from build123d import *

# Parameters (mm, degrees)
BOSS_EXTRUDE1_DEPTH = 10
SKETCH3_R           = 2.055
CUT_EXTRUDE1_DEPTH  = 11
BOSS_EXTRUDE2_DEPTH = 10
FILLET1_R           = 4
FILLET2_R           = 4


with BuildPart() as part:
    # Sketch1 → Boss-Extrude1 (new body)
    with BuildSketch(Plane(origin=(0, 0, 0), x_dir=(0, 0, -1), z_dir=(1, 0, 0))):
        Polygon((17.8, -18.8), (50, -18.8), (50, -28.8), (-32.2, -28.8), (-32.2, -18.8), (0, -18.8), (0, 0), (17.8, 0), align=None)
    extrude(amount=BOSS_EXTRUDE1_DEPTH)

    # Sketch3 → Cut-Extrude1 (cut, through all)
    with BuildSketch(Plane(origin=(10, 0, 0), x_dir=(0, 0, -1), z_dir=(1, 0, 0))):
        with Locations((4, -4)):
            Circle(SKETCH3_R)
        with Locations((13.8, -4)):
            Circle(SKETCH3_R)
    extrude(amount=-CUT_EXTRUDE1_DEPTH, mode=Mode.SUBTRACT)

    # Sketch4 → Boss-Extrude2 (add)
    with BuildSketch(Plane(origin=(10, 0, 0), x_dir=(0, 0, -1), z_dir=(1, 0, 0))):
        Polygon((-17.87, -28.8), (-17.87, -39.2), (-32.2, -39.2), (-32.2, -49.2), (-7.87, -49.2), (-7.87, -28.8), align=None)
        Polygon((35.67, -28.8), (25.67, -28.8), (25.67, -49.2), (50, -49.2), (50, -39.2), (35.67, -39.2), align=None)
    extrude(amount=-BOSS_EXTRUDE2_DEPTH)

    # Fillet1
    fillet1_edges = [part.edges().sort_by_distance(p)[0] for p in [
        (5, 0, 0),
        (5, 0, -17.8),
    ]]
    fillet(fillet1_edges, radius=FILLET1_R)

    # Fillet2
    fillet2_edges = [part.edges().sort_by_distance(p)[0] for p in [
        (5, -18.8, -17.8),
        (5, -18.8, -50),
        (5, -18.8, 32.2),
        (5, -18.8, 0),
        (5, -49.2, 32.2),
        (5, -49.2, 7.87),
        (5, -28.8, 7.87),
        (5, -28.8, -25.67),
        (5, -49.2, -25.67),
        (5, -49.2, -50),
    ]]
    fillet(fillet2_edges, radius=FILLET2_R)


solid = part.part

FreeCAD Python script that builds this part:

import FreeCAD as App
import Part
import Sketcher


def edges_at(feature, points):
    """Names of the edges that pass closest to the given points."""
    edges = feature.Shape.Edges
    near = lambda p: min(range(len(edges)), key=lambda i: edges[i].distToShape(Part.Vertex(*p))[0])
    return sorted({f"Edge{near(p) + 1}" for p in points})

doc = App.newDocument("Part")
params = doc.addObject("Spreadsheet::Sheet", "Params")
for row, (alias, value) in enumerate([
    ("sketch1_width", "10 mm"),
    ("sketch1_width2", "18.8 mm"),
    ("sketch1_height", "32.2 mm"),
    ("sketch1_height2", "17.8 mm"),
    ("pad1_length", "10 mm"),
    ("sketch2_diameter", "4.11 mm"),
    ("sketch3_width", "10 mm"),
    ("sketch3_width2", "10.4 mm"),
    ("sketch3_height", "14.33 mm"),
    ("pad2_length", "10 mm"),
    ("fillet_radius", "4 mm"),
    ("fillet2_radius", "4 mm"),
], start=1):
    params.set(f"A{row}", alias)
    params.set(f"B{row}", "=" + value)
    params.setAlias(f"B{row}", alias)

body = doc.addObject("PartDesign::Body", "Body")

sketch1 = body.newObject("Sketcher::SketchObject", "Sketch")
sketch1.AttachmentSupport = (doc.getObject("YZ_Plane"), [""])
sketch1.MapMode = "FlatFace"
sketch1.addGeometry([
    Part.LineSegment(App.Vector(-19, -50, 0), App.Vector(-19, -18, 0)),
    Part.LineSegment(App.Vector(-19, -18, 0), App.Vector(0, -18, 0)),
    Part.LineSegment(App.Vector(0, -18, 0), App.Vector(0, 0, 0)),
    Part.LineSegment(App.Vector(0, 0, 0), App.Vector(-19, 0, 0)),
    Part.LineSegment(App.Vector(-19, 0, 0), App.Vector(-19, 32, 0)),
    Part.LineSegment(App.Vector(-19, 32, 0), App.Vector(-29, 32, 0)),
    Part.LineSegment(App.Vector(-29, 32, 0), App.Vector(-29, -50, 0)),
    Part.LineSegment(App.Vector(-29, -50, 0), App.Vector(-19, -50, 0)),
], False)
sketch1.addConstraint([
    Sketcher.Constraint("Coincident", 0, 2, 1, 1),
    Sketcher.Constraint("Coincident", 1, 2, 2, 1),
    Sketcher.Constraint("Coincident", 2, 2, 3, 1),
    Sketcher.Constraint("Coincident", 3, 2, 4, 1),
    Sketcher.Constraint("Coincident", 4, 2, 5, 1),
    Sketcher.Constraint("Coincident", 5, 2, 6, 1),
    Sketcher.Constraint("Coincident", 6, 2, 7, 1),
    Sketcher.Constraint("Coincident", 7, 2, 0, 1),
    Sketcher.Constraint("Vertical", 0),
    Sketcher.Constraint("Horizontal", 1),
    Sketcher.Constraint("Vertical", 2),
    Sketcher.Constraint("Horizontal", 3),
    Sketcher.Constraint("Vertical", 4),
    Sketcher.Constraint("Horizontal", 5),
    Sketcher.Constraint("Vertical", 6),
    Sketcher.Constraint("Horizontal", 7),
    Sketcher.Constraint("Coincident", 2, 2, -1, 1),
    Sketcher.Constraint("Vertical", 0, 2, 3, 2),
    Sketcher.Constraint("Equal", 0, 4),
    Sketcher.Constraint("DistanceX", 5, 2, 5, 1, 10.0),
    Sketcher.Constraint("DistanceX", 1, 1, 1, 2, 18.8),
    Sketcher.Constraint("DistanceY", 0, 1, 0, 2, 32.2),
    Sketcher.Constraint("DistanceY", 2, 1, 2, 2, 17.8),
])
sketch1.setExpression("Constraints[19]", "Params.sketch1_width")
sketch1.setExpression("Constraints[20]", "Params.sketch1_width2")
sketch1.setExpression("Constraints[21]", "Params.sketch1_height")
sketch1.setExpression("Constraints[22]", "Params.sketch1_height2")
pad1 = body.newObject("PartDesign::Pad", "Pad")
pad1.Profile = sketch1
pad1.setExpression("Length", "Params.pad1_length")

sketch2 = body.newObject("Sketcher::SketchObject", "Sketch001")
sketch2.AttachmentSupport = (doc.getObject("YZ_Plane"), [""])
sketch2.MapMode = "FlatFace"
sketch2.AttachmentOffset = App.Placement(App.Vector(0, 0, 10), App.Rotation())
sketch2.addGeometry([
    Part.Circle(App.Vector(-4, -4, 0), App.Vector(0, 0, 1), 2.1),
    Part.Circle(App.Vector(-4, -13.8, 0), App.Vector(0, 0, 1), 2.1),
], False)
sketch2.addConstraint([
    Sketcher.Constraint("Equal", 0, 1),
    Sketcher.Constraint("Vertical", 0, 3, 1, 3),
    Sketcher.Constraint("Diameter", 0, 4.11),
    Sketcher.Constraint("DistanceX", 0, 3, -1, 1, 4.0),
    Sketcher.Constraint("DistanceY", 0, 3, -1, 1, 4.0),
    Sketcher.Constraint("DistanceY", 1, 3, -1, 1, 13.8),
])
sketch2.setExpression("Constraints[2]", "Params.sketch2_diameter")
pocket1 = body.newObject("PartDesign::Pocket", "Pocket")
pocket1.Profile = sketch2
pocket1.Type = "ThroughAll"

sketch3 = body.newObject("Sketcher::SketchObject", "Sketch002")
sketch3.AttachmentSupport = (doc.getObject("YZ_Plane"), [""])
sketch3.MapMode = "FlatFace"
sketch3.AttachmentOffset = App.Placement(App.Vector(0, 0, 10), App.Rotation())
sketch3.addGeometry([
    Part.LineSegment(App.Vector(-29, 18, 0), App.Vector(-39, 18, 0)),
    Part.LineSegment(App.Vector(-39, 18, 0), App.Vector(-39, 32, 0)),
    Part.LineSegment(App.Vector(-39, 32, 0), App.Vector(-49, 32, 0)),
    Part.LineSegment(App.Vector(-49, 32, 0), App.Vector(-49, 8, 0)),
    Part.LineSegment(App.Vector(-49, 8, 0), App.Vector(-29, 8, 0)),
    Part.LineSegment(App.Vector(-29, 8, 0), App.Vector(-29, 18, 0)),
    Part.LineSegment(App.Vector(-29, -36, 0), App.Vector(-29, -26, 0)),
    Part.LineSegment(App.Vector(-29, -26, 0), App.Vector(-49, -26, 0)),
    Part.LineSegment(App.Vector(-49, -26, 0), App.Vector(-49, -50, 0)),
    Part.LineSegment(App.Vector(-49, -50, 0), App.Vector(-39, -50, 0)),
    Part.LineSegment(App.Vector(-39, -50, 0), App.Vector(-39, -36, 0)),
    Part.LineSegment(App.Vector(-39, -36, 0), App.Vector(-29, -36, 0)),
], False)
sketch3.addConstraint([
    Sketcher.Constraint("Coincident", 0, 2, 1, 1),
    Sketcher.Constraint("Coincident", 1, 2, 2, 1),
    Sketcher.Constraint("Coincident", 2, 2, 3, 1),
    Sketcher.Constraint("Coincident", 3, 2, 4, 1),
    Sketcher.Constraint("Coincident", 4, 2, 5, 1),
    Sketcher.Constraint("Coincident", 5, 2, 0, 1),
    Sketcher.Constraint("Coincident", 6, 2, 7, 1),
    Sketcher.Constraint("Coincident", 7, 2, 8, 1),
    Sketcher.Constraint("Coincident", 8, 2, 9, 1),
    Sketcher.Constraint("Coincident", 9, 2, 10, 1),
    Sketcher.Constraint("Coincident", 10, 2, 11, 1),
    Sketcher.Constraint("Coincident", 11, 2, 6, 1),
    Sketcher.Constraint("Horizontal", 0),
    Sketcher.Constraint("Vertical", 1),
    Sketcher.Constraint("Horizontal", 2),
    Sketcher.Constraint("Vertical", 3),
    Sketcher.Constraint("Horizontal", 4),
    Sketcher.Constraint("Vertical", 5),
    Sketcher.Constraint("Vertical", 6),
    Sketcher.Constraint("Horizontal", 7),
    Sketcher.Constraint("Vertical", 8),
    Sketcher.Constraint("Horizontal", 9),
    Sketcher.Constraint("Vertical", 10),
    Sketcher.Constraint("Horizontal", 11),
    Sketcher.Constraint("Vertical", 5, 2, 6, 2),
    Sketcher.Constraint("Vertical", 3, 2, 7, 2),
    Sketcher.Constraint("Vertical", 1, 2, 9, 2),
    Sketcher.Constraint("Equal", 9, 5),
    Sketcher.Constraint("Equal", 5, 6),
    Sketcher.Constraint("Equal", 3, 8),
    Sketcher.Constraint("DistanceX", 2, 2, 2, 1, 10.0),
    Sketcher.Constraint("DistanceX", 0, 2, 0, 1, 10.4),
    Sketcher.Constraint("DistanceY", 8, 2, -1, 1, 50.0),
    Sketcher.Constraint("DistanceY", 1, 1, 1, 2, 14.33),
    Sketcher.Constraint("DistanceX", 0, 2, -1, 1, 39.2),
    Sketcher.Constraint("DistanceY", -1, 1, 1, 2, 32.2),
])
sketch3.setExpression("Constraints[30]", "Params.sketch3_width")
sketch3.setExpression("Constraints[31]", "Params.sketch3_width2")
sketch3.setExpression("Constraints[33]", "Params.sketch3_height")
pad2 = body.newObject("PartDesign::Pad", "Pad001")
pad2.Profile = sketch3
pad2.setExpression("Length", "Params.pad2_length")
pad2.Reversed = True
doc.recompute()

fillet = body.newObject("PartDesign::Fillet", "Fillet")
fillet.Base = (pad2, edges_at(pad2, [(5, 0, 0), (5, 0, -17.8)]))
fillet.setExpression("Radius", "Params.fillet_radius")
doc.recompute()

fillet2 = body.newObject("PartDesign::Fillet", "Fillet001")
fillet2.Base = (fillet, edges_at(fillet, [
    (5, -18.8, -17.8),
    (5, -18.8, -50),
    (5, -18.8, 32.2),
    (5, -18.8, 0),
    (5, -49.2, 32.2),
    (5, -49.2, 7.87),
    (5, -28.8, 7.87),
    (5, -28.8, -25.67),
    (5, -49.2, -25.67),
    (5, -49.2, -50),
]))
fillet2.setExpression("Radius", "Params.fillet2_radius")

doc.recompute()
